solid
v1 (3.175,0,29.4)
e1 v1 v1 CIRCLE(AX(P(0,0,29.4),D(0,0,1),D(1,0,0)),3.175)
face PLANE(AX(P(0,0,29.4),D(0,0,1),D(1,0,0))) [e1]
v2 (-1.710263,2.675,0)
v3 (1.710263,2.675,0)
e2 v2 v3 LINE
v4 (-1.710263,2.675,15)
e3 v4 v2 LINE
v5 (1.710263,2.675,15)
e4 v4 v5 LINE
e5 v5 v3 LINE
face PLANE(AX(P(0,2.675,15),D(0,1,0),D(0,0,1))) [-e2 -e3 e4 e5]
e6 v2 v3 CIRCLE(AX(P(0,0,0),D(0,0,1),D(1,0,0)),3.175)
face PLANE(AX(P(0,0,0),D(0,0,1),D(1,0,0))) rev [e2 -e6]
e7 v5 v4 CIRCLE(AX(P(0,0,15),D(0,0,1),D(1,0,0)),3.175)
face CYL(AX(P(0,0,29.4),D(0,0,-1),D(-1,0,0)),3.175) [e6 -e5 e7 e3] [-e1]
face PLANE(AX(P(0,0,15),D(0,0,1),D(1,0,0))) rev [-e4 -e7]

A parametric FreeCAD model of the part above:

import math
import FreeCAD as App
import Part
import Sketcher

V = App.Vector

doc = App.newDocument("Part")
params = doc.addObject("Spreadsheet::Sheet", "Params")
for row, (alias, value) in enumerate([
    ("pad1_length", "29.4 mm"),
    ("pocket1_length", "15 mm"),
], start=1):
    params.set(f"A{row}", alias)
    params.set(f"B{row}", "=" + value)
    params.setAlias(f"B{row}", alias)

body = doc.addObject("PartDesign::Body", "Body")

# Sketch on XY plane
sketch1 = doc.addObject("Sketcher::SketchObject", "Sketch")
body.addObject(sketch1)
sketch1.AttachmentSupport = (doc.XY_Plane, [""])
sketch1.MapMode = "FlatFace"
sketch1.addGeometry(Part.ArcOfCircle(Part.Circle(V(0, 0, 0), V(0, 0, 1), 3.2), math.radians(123), math.radians(360)), False)
sketch1.addGeometry(Part.ArcOfCircle(Part.Circle(V(0, 0, 0), V(0, 0, 1), 3.2), math.radians(0), math.radians(57)), False)
sketch1.addGeometry(Part.ArcOfCircle(Part.Circle(V(0, 0, 0), V(0, 0, 1), 3.2), math.radians(57), math.radians(123)), False)
sketch1.addConstraint(Sketcher.Constraint("Tangent", 0, 2, 1, 1))
sketch1.addConstraint(Sketcher.Constraint("Tangent", 1, 2, 2, 1))
sketch1.addConstraint(Sketcher.Constraint("Tangent", 2, 2, 0, 1))
sketch1.addConstraint(Sketcher.Constraint("Coincident", 0, 3, -1, 1))
sketch1.addConstraint(Sketcher.Constraint("PointOnObject", 0, 2, -1))
sketch1.addConstraint(Sketcher.Constraint("Horizontal", 1, 2, 2, 2))
sketch1.addConstraint(Sketcher.Constraint("Radius", 0, 3.175))
sketch1.addConstraint(Sketcher.Constraint("DistanceY", -1, 1, 1, 2, 2.675))
pad1 = doc.addObject("PartDesign::Pad", "Pad")
body.addObject(pad1)
pad1.Profile = sketch1
pad1.setExpression("Length", "Params.pad1_length")

# Sketch on XY plane
sketch2 = doc.addObject("Sketcher::SketchObject", "Sketch001")
body.addObject(sketch2)
sketch2.AttachmentSupport = (doc.XY_Plane, [""])
sketch2.MapMode = "FlatFace"
sketch2.addGeometry(Part.LineSegment(V(-1.7, 2.7, 0), V(1.7, 2.7, 0)), False)
sketch2.addGeometry(Part.ArcOfCircle(Part.Circle(V(0, 0, 0), V(0, 0, 1), 3.2), math.radians(57), math.radians(123)), False)
sketch2.addConstraint(Sketcher.Constraint("Coincident", 0, 1, 1, 2))
sketch2.addConstraint(Sketcher.Constraint("Coincident", 1, 1, 0, 2))
sketch2.addConstraint(Sketcher.Constraint("Horizontal", 0))
sketch2.addConstraint(Sketcher.Constraint("Coincident", 1, 3, -1, 1))
sketch2.addConstraint(Sketcher.Constraint("Radius", 1, 3.175))
sketch2.addConstraint(Sketcher.Constraint("DistanceY", -1, 1, 0, 1, 2.675))
pocket1 = doc.addObject("PartDesign::Pocket", "Pocket")
body.addObject(pocket1)
pocket1.Profile = sketch2
pocket1.setExpression("Length", "Params.pocket1_length")
pocket1.Reversed = True

doc.recompute()
